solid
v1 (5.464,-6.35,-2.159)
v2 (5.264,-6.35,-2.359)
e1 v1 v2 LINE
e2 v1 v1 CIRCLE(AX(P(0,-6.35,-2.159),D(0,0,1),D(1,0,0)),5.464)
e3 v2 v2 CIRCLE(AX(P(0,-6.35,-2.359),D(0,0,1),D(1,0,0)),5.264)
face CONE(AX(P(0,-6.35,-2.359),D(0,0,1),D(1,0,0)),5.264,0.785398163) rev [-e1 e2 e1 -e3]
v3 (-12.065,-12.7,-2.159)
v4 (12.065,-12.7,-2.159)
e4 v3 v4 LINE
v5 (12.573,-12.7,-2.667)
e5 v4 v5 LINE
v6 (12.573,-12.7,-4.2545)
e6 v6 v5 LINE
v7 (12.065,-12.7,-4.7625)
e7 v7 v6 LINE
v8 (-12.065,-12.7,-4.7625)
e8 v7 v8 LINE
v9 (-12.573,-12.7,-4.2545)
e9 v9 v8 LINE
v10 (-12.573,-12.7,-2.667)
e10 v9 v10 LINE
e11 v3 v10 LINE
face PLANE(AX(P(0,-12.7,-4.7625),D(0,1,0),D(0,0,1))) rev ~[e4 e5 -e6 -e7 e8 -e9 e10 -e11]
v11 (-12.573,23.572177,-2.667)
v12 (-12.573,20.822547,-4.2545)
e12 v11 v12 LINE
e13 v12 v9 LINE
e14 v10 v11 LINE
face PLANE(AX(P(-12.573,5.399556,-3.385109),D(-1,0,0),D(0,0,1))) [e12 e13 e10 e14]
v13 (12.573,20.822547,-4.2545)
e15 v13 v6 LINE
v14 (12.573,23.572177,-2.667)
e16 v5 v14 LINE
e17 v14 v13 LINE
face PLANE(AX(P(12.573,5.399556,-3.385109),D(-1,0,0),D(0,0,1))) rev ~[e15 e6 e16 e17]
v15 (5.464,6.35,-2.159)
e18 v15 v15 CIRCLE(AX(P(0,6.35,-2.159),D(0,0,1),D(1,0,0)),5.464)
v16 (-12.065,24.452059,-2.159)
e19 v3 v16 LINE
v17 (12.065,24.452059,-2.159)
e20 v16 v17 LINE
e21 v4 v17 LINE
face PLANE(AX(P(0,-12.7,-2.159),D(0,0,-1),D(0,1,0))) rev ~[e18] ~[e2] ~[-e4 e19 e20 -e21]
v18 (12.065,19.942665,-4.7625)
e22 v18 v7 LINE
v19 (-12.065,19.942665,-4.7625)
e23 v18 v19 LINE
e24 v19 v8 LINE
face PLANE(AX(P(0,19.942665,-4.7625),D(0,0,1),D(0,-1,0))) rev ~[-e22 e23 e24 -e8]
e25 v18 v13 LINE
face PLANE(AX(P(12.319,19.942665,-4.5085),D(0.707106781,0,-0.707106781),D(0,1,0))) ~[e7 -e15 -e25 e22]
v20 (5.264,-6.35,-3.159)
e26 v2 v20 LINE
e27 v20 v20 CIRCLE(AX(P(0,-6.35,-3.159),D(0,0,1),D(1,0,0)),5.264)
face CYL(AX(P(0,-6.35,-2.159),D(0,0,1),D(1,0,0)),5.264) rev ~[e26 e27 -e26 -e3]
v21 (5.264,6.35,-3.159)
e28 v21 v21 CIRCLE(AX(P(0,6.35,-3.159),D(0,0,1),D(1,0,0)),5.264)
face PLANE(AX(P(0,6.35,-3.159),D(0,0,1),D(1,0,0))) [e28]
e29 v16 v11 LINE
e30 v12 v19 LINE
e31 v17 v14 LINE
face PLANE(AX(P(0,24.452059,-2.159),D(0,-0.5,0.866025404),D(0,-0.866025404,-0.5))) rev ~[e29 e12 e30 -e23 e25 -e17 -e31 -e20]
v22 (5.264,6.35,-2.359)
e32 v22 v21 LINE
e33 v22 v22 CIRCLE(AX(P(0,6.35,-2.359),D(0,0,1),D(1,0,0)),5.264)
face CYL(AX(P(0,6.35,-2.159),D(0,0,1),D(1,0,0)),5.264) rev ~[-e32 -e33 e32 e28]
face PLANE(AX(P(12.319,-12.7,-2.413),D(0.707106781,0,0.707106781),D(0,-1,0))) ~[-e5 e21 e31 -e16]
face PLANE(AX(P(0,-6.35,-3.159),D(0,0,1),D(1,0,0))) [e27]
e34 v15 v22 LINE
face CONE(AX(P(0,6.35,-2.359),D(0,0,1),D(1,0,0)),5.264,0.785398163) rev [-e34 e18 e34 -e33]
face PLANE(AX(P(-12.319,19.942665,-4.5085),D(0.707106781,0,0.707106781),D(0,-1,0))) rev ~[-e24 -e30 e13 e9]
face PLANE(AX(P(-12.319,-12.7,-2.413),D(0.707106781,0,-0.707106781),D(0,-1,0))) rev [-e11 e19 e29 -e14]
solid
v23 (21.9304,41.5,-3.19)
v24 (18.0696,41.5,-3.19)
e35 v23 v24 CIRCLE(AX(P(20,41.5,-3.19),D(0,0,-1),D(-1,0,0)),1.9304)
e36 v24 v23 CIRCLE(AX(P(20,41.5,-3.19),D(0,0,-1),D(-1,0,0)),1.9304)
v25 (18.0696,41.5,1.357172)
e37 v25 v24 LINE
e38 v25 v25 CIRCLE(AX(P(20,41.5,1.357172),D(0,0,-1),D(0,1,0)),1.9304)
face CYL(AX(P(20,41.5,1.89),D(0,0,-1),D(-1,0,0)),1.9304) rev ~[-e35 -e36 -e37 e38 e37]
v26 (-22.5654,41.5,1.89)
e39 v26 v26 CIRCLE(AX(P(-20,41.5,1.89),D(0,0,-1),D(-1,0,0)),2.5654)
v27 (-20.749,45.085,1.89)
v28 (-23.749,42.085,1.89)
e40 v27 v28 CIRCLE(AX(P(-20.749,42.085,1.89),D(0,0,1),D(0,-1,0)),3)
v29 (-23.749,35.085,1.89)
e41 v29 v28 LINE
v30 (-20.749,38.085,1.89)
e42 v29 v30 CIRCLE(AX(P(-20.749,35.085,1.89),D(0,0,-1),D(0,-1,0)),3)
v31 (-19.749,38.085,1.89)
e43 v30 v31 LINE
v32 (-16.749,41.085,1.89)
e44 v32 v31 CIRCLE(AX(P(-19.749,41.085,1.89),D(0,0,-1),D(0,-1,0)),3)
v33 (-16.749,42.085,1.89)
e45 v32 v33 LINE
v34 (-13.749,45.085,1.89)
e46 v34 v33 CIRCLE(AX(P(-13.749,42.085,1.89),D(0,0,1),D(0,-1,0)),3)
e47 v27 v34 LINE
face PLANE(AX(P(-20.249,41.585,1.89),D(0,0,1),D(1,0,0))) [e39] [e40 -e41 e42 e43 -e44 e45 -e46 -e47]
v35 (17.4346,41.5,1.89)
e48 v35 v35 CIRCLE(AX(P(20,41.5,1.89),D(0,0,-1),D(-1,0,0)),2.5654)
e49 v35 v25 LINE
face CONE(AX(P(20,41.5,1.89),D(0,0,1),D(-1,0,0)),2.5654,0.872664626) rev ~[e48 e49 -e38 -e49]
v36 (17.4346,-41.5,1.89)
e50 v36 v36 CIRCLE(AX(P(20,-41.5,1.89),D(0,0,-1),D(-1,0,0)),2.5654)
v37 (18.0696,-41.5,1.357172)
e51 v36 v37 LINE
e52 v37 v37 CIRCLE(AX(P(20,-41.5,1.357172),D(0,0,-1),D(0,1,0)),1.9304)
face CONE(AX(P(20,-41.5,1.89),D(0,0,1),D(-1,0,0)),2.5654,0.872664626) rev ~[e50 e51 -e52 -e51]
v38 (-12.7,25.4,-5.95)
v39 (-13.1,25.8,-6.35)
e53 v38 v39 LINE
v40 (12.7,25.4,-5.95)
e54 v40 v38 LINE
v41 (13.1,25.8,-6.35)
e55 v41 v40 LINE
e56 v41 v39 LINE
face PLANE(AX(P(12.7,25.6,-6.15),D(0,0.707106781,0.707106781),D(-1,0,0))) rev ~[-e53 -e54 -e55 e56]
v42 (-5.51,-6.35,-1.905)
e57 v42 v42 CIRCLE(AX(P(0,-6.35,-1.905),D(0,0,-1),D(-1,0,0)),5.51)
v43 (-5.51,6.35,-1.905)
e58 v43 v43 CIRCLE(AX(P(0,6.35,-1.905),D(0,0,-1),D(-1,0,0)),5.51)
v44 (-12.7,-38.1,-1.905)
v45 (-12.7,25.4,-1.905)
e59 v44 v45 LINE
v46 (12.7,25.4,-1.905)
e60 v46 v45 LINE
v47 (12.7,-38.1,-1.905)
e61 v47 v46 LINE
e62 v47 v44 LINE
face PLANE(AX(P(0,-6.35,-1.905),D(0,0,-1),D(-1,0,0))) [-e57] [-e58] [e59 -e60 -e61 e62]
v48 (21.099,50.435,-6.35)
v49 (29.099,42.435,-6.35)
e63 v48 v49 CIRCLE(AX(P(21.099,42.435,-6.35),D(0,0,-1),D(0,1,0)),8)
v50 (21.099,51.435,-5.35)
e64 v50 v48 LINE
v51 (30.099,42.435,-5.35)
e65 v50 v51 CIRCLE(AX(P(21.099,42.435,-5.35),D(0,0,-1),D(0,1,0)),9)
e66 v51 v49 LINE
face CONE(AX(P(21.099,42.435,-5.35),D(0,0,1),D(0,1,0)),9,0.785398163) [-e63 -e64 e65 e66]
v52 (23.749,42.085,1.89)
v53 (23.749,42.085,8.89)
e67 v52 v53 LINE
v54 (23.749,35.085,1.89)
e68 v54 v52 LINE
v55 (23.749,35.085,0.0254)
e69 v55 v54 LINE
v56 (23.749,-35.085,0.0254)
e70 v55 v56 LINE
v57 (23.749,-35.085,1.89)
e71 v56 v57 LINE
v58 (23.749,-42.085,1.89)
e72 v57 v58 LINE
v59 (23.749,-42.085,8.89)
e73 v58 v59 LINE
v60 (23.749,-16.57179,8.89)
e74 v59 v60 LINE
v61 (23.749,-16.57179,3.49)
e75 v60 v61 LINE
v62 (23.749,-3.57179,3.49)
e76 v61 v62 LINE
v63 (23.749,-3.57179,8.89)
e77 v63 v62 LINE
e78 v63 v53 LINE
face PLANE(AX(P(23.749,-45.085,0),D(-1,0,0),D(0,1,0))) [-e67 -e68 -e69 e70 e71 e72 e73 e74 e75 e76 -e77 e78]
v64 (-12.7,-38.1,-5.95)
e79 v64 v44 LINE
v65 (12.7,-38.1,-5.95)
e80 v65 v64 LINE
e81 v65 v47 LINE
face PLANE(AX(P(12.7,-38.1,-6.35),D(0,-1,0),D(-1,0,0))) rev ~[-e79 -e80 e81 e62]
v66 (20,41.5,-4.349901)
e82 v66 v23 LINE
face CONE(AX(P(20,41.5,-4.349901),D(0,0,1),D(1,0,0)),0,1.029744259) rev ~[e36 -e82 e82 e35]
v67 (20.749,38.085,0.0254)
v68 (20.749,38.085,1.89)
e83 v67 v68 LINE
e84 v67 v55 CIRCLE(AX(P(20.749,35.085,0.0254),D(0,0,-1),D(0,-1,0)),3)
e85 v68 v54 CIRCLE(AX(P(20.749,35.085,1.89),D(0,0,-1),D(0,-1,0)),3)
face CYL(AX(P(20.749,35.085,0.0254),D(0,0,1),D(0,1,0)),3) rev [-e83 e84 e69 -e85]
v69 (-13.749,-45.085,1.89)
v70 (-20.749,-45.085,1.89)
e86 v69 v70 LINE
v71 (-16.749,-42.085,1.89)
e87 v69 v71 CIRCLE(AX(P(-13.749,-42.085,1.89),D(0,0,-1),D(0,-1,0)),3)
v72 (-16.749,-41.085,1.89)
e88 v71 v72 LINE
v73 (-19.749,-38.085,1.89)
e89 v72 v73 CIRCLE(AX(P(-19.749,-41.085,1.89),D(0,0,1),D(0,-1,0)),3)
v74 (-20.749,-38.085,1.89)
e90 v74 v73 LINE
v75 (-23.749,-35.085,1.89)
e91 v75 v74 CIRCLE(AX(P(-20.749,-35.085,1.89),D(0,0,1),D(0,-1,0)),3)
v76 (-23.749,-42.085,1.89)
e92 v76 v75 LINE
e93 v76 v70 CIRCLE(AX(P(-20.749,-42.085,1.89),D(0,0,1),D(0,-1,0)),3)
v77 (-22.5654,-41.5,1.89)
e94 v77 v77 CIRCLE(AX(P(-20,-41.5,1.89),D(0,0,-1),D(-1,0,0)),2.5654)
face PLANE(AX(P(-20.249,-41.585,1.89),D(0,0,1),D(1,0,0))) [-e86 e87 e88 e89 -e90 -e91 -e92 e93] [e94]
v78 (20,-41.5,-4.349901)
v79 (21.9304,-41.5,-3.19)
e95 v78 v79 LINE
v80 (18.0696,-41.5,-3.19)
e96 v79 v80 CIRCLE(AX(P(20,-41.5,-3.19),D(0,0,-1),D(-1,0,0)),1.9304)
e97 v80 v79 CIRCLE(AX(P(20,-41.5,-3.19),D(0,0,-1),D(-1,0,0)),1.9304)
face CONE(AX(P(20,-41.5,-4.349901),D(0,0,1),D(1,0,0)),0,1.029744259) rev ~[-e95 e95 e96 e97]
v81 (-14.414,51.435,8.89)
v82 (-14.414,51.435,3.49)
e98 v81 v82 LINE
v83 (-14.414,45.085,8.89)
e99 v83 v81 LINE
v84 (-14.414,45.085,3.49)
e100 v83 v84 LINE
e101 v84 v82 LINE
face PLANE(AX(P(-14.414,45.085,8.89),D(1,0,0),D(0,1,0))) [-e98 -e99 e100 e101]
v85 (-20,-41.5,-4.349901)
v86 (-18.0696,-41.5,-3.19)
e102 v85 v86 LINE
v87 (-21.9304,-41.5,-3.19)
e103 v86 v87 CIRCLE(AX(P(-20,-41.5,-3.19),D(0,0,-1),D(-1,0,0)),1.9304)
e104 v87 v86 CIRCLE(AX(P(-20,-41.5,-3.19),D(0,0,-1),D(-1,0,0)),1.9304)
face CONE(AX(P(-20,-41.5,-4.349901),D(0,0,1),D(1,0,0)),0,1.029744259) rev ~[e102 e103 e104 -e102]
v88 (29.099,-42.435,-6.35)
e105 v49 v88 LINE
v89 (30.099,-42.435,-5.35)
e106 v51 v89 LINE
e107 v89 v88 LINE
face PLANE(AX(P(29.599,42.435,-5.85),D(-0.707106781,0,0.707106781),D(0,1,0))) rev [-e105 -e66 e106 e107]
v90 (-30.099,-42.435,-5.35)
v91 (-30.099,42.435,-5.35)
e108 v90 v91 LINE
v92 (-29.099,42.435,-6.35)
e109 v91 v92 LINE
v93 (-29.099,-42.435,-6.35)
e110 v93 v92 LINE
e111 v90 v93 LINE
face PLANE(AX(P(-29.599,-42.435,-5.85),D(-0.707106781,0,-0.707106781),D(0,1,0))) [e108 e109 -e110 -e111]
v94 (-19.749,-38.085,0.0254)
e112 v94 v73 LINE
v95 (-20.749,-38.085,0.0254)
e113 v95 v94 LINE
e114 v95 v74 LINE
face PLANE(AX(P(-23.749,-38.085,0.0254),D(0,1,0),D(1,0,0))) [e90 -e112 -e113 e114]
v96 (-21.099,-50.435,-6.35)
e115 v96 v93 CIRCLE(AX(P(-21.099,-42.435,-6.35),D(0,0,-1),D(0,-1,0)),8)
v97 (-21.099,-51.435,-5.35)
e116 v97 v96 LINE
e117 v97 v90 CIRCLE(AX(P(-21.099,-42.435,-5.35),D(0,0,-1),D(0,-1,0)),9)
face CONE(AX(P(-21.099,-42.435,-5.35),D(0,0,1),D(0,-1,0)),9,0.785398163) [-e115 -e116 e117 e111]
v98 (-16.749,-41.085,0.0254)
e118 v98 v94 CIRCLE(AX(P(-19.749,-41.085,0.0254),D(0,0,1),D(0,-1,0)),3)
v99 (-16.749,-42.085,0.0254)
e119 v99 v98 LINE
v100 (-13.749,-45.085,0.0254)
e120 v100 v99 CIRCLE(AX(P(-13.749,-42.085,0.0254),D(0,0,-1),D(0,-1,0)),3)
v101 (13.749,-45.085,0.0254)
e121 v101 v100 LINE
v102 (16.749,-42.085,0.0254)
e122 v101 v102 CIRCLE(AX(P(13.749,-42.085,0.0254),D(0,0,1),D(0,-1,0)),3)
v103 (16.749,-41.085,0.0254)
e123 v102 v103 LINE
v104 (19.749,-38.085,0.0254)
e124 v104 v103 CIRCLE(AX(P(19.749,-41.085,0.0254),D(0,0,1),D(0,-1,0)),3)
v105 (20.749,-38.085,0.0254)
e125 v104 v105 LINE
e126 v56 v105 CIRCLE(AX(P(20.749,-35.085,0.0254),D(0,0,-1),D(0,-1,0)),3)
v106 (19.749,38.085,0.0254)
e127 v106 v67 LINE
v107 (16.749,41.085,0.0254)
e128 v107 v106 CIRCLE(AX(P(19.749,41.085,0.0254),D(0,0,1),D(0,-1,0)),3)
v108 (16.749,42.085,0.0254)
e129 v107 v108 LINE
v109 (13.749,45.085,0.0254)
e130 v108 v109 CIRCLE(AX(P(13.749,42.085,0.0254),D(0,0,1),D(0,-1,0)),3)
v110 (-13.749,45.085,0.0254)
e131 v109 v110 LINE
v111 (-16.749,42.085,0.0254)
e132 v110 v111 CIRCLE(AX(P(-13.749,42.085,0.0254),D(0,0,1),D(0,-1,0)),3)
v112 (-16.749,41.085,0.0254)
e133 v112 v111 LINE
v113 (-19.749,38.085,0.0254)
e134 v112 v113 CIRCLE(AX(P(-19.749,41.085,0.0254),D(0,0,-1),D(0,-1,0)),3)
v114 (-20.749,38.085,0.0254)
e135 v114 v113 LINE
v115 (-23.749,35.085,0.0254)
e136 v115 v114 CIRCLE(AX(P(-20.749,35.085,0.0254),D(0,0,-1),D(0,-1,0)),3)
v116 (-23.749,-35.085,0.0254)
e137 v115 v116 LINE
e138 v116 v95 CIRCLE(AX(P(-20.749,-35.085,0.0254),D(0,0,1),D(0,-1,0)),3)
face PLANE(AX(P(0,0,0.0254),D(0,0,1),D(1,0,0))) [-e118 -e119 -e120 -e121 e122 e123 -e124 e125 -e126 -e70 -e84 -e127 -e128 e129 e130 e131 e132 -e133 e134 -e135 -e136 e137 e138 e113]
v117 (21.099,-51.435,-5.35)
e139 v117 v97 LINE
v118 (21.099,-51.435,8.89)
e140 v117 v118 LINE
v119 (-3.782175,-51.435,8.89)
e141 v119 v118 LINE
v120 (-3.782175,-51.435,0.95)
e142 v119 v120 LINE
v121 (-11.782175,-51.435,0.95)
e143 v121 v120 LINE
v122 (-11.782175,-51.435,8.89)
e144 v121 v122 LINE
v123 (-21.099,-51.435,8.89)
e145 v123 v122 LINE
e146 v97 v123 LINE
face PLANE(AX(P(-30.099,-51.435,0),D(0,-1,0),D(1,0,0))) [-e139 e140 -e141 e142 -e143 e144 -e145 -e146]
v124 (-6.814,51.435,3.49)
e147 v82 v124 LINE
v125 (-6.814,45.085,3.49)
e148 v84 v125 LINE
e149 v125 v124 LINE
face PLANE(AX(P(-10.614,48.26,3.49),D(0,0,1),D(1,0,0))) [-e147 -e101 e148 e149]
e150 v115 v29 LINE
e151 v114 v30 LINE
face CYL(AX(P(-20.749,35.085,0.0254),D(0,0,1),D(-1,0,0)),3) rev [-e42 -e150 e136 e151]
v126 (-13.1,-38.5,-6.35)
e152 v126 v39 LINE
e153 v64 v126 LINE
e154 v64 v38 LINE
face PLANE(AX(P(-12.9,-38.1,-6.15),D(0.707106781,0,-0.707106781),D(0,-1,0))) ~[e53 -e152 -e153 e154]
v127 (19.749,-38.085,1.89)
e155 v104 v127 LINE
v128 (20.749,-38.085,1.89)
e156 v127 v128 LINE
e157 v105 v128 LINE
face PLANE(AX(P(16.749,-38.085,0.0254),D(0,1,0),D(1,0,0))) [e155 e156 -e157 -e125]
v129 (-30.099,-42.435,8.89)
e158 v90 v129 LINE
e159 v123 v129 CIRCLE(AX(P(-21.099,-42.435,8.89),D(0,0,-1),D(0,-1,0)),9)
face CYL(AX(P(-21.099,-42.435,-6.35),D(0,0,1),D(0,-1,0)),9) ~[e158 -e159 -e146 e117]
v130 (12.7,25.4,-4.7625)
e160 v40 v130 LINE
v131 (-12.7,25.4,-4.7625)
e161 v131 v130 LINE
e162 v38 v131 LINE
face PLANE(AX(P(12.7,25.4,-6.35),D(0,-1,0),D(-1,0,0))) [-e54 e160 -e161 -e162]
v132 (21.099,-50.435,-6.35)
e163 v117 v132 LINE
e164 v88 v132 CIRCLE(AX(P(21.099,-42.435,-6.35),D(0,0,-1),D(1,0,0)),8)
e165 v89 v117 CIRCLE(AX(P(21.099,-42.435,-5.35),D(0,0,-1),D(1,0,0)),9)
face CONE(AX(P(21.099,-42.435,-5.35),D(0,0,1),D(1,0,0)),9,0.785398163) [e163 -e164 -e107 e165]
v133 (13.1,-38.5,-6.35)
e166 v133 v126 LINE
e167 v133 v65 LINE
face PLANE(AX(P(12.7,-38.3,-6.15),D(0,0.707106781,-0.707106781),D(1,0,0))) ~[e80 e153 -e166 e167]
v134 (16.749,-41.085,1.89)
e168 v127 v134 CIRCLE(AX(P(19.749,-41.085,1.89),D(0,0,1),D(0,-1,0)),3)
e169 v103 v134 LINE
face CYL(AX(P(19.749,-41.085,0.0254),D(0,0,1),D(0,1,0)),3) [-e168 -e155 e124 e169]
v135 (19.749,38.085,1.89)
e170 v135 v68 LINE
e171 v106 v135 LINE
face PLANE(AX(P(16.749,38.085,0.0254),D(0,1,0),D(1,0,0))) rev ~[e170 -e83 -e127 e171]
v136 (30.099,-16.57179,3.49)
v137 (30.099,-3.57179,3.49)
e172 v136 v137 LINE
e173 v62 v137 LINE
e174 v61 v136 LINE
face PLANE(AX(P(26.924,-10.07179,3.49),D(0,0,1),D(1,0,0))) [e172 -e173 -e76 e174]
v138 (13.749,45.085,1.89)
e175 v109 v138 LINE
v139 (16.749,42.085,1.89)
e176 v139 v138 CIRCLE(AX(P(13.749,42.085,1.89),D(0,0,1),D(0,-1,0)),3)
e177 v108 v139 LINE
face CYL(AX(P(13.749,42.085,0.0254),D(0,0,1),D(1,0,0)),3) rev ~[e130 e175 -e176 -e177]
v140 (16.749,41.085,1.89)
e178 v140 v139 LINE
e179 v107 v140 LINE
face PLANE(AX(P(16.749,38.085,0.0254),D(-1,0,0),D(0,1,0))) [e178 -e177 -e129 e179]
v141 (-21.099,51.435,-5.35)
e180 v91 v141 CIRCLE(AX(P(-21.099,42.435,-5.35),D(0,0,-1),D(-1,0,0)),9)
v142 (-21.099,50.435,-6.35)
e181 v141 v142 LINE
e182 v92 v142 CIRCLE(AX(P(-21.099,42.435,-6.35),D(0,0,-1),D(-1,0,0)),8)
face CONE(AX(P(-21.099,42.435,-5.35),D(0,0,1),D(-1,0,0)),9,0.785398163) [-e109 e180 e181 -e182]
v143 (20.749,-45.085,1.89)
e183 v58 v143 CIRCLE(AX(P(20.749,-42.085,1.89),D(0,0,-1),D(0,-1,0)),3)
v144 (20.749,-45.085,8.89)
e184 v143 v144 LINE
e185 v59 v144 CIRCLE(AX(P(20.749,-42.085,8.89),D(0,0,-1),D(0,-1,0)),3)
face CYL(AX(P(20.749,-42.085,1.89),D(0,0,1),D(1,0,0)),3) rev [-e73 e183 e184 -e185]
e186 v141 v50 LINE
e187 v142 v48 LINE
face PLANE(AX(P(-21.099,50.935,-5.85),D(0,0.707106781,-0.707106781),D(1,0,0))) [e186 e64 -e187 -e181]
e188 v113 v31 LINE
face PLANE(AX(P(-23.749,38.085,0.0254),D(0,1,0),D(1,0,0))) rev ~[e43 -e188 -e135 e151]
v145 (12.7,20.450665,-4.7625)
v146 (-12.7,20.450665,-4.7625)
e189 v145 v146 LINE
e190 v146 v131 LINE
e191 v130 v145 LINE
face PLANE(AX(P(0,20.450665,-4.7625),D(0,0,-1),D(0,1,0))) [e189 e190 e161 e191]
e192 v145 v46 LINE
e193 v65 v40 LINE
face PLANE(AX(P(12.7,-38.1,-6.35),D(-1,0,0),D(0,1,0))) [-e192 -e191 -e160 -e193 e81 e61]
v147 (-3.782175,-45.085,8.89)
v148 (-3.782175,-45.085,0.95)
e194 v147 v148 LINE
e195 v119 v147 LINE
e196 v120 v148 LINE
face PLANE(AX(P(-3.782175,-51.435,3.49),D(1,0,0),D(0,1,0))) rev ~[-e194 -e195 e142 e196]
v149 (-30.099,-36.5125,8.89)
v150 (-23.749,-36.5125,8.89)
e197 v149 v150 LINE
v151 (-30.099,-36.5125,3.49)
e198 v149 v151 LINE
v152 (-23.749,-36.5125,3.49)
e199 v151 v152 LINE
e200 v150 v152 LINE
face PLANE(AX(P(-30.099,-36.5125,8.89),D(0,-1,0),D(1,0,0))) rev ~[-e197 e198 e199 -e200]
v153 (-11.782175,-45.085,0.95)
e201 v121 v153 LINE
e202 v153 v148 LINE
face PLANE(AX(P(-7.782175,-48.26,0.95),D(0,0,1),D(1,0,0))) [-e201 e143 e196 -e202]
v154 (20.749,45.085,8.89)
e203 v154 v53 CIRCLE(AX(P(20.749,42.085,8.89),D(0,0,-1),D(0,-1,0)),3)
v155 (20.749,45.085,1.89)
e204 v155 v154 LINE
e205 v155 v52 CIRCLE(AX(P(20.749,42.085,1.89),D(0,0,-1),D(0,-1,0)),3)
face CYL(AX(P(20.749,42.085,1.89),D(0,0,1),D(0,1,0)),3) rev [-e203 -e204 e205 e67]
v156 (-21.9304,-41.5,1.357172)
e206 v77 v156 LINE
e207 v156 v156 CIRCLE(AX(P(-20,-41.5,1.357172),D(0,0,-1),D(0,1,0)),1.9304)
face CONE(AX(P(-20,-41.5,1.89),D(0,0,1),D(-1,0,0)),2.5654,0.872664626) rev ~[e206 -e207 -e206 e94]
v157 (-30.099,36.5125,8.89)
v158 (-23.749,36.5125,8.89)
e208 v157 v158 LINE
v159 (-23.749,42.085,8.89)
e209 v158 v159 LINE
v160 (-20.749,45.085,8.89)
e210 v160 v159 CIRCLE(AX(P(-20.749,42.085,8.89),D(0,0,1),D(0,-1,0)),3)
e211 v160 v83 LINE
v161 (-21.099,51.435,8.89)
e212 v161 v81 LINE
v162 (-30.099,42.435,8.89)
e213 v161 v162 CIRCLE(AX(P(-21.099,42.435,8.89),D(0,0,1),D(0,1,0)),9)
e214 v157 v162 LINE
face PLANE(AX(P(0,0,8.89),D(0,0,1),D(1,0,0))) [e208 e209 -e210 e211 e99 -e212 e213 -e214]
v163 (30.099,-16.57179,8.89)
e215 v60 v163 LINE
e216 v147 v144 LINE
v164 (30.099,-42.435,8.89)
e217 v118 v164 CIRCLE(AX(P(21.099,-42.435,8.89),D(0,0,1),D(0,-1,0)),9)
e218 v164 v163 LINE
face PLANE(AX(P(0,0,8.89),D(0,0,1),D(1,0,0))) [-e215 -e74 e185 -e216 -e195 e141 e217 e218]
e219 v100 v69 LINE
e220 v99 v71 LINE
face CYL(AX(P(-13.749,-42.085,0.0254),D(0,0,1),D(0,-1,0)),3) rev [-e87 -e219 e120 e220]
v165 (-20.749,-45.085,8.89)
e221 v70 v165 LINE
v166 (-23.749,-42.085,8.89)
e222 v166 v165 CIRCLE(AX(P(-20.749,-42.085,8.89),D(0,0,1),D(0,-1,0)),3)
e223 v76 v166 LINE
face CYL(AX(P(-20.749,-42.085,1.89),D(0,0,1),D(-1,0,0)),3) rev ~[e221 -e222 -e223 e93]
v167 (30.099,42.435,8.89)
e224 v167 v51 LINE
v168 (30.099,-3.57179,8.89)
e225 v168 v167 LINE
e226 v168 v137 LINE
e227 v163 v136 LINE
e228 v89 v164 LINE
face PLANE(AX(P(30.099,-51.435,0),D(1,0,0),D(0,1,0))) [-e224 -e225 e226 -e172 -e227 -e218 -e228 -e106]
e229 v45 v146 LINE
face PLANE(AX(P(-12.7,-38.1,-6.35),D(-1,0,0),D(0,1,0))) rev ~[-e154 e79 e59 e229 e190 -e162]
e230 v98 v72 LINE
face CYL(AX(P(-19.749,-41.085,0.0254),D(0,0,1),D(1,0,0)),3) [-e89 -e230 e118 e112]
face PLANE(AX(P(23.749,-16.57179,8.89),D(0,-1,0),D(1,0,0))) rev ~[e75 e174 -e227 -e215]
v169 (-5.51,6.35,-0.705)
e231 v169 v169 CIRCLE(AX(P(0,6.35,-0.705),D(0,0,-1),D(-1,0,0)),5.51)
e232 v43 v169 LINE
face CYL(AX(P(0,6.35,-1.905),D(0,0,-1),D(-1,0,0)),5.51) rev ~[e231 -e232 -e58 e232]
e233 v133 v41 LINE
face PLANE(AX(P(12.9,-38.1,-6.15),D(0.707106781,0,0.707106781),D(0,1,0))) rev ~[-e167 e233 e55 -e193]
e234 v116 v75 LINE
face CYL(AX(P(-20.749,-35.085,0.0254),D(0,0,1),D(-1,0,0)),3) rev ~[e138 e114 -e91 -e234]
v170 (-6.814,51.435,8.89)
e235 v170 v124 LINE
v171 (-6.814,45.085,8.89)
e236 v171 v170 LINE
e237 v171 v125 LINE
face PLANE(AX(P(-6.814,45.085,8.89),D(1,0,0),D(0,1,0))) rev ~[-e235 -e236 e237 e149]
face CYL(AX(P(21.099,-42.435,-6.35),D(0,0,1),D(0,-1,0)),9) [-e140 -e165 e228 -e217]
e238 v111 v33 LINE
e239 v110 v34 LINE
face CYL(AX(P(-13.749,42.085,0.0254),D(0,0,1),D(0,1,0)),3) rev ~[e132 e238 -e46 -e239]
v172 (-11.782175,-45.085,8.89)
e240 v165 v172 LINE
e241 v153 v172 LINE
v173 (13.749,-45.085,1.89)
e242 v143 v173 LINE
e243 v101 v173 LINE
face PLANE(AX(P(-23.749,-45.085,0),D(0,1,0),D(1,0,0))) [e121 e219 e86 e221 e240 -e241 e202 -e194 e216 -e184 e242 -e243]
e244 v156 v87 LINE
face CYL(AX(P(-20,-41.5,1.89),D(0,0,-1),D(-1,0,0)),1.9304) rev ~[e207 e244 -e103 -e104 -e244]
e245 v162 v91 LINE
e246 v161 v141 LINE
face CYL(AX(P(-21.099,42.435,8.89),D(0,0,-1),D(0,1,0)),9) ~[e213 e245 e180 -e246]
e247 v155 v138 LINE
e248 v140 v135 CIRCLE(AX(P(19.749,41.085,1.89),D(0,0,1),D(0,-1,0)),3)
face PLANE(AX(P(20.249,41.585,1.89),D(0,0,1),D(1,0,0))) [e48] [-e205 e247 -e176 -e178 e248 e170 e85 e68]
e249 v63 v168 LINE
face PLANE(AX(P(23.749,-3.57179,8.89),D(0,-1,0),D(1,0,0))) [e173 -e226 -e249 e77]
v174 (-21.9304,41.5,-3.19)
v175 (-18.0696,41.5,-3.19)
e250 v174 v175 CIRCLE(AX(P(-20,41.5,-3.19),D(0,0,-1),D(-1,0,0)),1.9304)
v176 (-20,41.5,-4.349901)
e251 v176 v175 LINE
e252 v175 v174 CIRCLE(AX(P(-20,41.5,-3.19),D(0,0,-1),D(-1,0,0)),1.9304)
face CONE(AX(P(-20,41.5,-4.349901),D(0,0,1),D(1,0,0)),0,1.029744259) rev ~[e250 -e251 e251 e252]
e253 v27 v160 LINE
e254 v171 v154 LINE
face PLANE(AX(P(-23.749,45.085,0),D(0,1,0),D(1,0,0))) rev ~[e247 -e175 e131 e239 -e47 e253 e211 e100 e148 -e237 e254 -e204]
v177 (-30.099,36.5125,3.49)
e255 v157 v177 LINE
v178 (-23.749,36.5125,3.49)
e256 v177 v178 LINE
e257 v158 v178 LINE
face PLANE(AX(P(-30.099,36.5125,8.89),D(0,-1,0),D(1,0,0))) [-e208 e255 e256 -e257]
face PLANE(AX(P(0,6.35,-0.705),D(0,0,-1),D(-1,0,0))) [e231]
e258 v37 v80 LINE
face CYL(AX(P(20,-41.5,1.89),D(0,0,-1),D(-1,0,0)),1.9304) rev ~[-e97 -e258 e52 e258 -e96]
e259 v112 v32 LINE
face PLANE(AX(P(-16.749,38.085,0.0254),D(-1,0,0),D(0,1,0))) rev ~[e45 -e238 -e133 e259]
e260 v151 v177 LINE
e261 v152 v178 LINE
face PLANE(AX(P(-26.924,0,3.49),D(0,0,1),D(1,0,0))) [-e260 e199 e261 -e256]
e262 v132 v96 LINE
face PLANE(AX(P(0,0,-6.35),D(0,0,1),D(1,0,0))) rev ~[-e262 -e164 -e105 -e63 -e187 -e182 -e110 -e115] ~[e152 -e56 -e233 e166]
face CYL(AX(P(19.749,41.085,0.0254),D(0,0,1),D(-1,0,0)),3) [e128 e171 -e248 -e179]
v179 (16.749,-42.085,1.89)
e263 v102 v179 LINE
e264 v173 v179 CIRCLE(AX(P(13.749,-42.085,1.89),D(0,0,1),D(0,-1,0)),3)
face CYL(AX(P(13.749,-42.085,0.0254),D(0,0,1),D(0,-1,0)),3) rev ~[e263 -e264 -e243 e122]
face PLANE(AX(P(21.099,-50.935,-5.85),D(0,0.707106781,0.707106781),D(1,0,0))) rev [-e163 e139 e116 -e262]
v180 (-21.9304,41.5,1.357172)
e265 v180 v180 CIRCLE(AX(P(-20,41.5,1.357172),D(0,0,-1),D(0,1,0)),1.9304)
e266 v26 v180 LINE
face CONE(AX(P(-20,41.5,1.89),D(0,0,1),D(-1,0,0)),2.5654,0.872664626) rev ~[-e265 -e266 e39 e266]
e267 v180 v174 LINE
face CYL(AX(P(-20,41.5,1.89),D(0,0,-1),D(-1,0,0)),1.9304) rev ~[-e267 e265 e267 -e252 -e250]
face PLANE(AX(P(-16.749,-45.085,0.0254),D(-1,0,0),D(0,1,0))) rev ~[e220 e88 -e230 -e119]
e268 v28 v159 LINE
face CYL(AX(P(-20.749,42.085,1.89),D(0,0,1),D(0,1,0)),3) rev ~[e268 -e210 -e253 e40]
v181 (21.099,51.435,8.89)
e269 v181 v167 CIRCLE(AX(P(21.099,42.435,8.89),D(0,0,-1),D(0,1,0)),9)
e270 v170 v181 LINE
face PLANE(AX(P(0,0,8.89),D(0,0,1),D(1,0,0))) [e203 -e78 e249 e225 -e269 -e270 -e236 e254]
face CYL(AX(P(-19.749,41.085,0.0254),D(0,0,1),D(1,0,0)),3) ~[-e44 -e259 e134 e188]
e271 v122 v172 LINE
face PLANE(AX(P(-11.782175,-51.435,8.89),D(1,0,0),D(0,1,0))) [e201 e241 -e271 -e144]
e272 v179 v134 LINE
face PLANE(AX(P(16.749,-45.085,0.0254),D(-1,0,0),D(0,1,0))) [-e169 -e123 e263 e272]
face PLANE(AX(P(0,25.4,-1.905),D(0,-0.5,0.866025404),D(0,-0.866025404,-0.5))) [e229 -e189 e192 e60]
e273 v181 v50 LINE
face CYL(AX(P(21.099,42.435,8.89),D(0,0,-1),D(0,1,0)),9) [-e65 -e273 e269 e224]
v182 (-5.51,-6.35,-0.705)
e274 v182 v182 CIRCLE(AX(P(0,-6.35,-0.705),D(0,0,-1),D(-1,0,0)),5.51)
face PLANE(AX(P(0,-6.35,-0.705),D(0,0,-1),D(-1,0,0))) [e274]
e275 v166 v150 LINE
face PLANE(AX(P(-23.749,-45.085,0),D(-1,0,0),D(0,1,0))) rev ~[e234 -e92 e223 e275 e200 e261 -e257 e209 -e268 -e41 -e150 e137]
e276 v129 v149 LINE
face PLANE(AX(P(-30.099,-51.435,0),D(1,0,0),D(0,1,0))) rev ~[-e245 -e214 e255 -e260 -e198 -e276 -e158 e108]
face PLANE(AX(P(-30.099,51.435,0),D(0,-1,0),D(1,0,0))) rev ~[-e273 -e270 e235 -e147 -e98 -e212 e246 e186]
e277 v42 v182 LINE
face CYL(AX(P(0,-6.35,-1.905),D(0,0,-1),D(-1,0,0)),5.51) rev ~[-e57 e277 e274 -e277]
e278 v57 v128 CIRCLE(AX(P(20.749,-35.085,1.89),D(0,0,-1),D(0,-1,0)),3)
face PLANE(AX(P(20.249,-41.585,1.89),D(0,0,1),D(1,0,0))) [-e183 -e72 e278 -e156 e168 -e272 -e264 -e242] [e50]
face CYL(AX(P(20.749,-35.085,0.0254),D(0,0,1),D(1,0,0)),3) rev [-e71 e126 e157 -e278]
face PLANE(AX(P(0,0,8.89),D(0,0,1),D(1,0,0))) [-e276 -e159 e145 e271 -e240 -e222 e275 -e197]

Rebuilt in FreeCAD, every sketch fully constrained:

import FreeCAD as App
import Part
import Sketcher
Q = App.Units.Quantity


def edges_at(feature, points):
    """Names of the edges that pass closest to the given points."""
    edges = feature.Shape.Edges
    near = lambda p: min(range(len(edges)), key=lambda i: edges[i].distToShape(Part.Vertex(*p))[0])
    return sorted({f"Edge{near(p) + 1}" for p in points})

doc = App.newDocument("Part")
body = doc.addObject("PartDesign::Body", "Body")

# Sketch on XY plane
sketch1 = body.newObject("Sketcher::SketchObject", "Sketch")
sketch1.AttachmentSupport = (doc.getObject("XY_Plane"), [""])
sketch1.MapMode = "FlatFace"
sketch1.addGeometry([
    Part.LineSegment(App.Vector(-30, 51, 0), App.Vector(-30, -51, 0)),
    Part.LineSegment(App.Vector(-30, -51, 0), App.Vector(30, -51, 0)),
    Part.LineSegment(App.Vector(30, -51, 0), App.Vector(30, 51, 0)),
    Part.LineSegment(App.Vector(30, 51, 0), App.Vector(-30, 51, 0)),
], False)
sketch1.addConstraint([
    Sketcher.Constraint("Coincident", 0, 2, 1, 1),
    Sketcher.Constraint("Coincident", 1, 2, 2, 1),
    Sketcher.Constraint("Coincident", 2, 2, 3, 1),
    Sketcher.Constraint("Coincident", 3, 2, 0, 1),
    Sketcher.Constraint("Vertical", 0),
    Sketcher.Constraint("Horizontal", 1),
    Sketcher.Constraint("Vertical", 2),
    Sketcher.Constraint("Horizontal", 3),
    Sketcher.Constraint("Symmetric", 0, 2, 2, 2, -1, 1),
    Sketcher.Constraint("DistanceX", 1, 1, 1, 2, Q("2.37 in")),
    Sketcher.Constraint("DistanceY", 0, 2, 0, 1, Q("4.05 in")),
])
pad1 = body.newObject("PartDesign::Pad", "Pad")
pad1.Profile = sketch1
pad1.Type = "TwoLengths"
pad1.Length = Q("0.001 in")
pad1.Length2 = Q("0.25 in")

# Sketch on XY plane
sketch2 = body.newObject("Sketcher::SketchObject", "Sketch001")
sketch2.AttachmentSupport = (doc.getObject("XY_Plane"), [""])
sketch2.MapMode = "FlatFace"
sketch2.addGeometry([
    Part.LineSegment(App.Vector(-30, 51, 0), App.Vector(-30, -51, 0)),  # 0
    Part.LineSegment(App.Vector(-30, -51, 0), App.Vector(30, -51, 0)),  # 1
    Part.LineSegment(App.Vector(30, -51, 0), App.Vector(30, 51, 0)),  # 2
    Part.LineSegment(App.Vector(30, 51, 0), App.Vector(-30, 51, 0)),  # 3
    Part.LineSegment(App.Vector(24, -45, 0), App.Vector(-24, -45, 0)),  # 4
    Part.LineSegment(App.Vector(-24, -45, 0), App.Vector(-24, 45, 0)),  # 5
    Part.LineSegment(App.Vector(-24, 45, 0), App.Vector(24, 45, 0)),  # 6
    Part.LineSegment(App.Vector(24, 45, 0), App.Vector(24, -45, 0)),  # 7
], False)
sketch2.addConstraint([
    Sketcher.Constraint("Coincident", 0, 2, 1, 1),
    Sketcher.Constraint("Coincident", 1, 2, 2, 1),
    Sketcher.Constraint("Coincident", 2, 2, 3, 1),
    Sketcher.Constraint("Coincident", 3, 2, 0, 1),
    Sketcher.Constraint("Coincident", 4, 2, 5, 1),
    Sketcher.Constraint("Coincident", 5, 2, 6, 1),
    Sketcher.Constraint("Coincident", 6, 2, 7, 1),
    Sketcher.Constraint("Coincident", 7, 2, 4, 1),
    Sketcher.Constraint("Vertical", 0),
    Sketcher.Constraint("Horizontal", 1),
    Sketcher.Constraint("Vertical", 2),
    Sketcher.Constraint("Horizontal", 3),
    Sketcher.Constraint("Horizontal", 4),
    Sketcher.Constraint("Vertical", 5),
    Sketcher.Constraint("Horizontal", 6),
    Sketcher.Constraint("Vertical", 7),
    Sketcher.Constraint("Symmetric", 0, 2, 2, 2, -1, 1),
    Sketcher.Constraint("Symmetric", 4, 2, 6, 2, -1, 1),
    Sketcher.Constraint("DistanceX", 1, 1, 1, 2, Q("2.37 in")),
    Sketcher.Constraint("DistanceX", 4, 2, 4, 1, Q("1.87 in")),
    Sketcher.Constraint("DistanceY", 0, 2, 0, 1, Q("4.05 in")),
    Sketcher.Constraint("DistanceY", 5, 1, 5, 2, Q("3.55 in")),
])
pad2 = body.newObject("PartDesign::Pad", "Pad001")
pad2.Profile = sketch2
pad2.Length = Q("0.35 in")

# Sketch on XY plane
sketch3 = body.newObject("Sketcher::SketchObject", "Sketch002")
sketch3.AttachmentSupport = (doc.getObject("XY_Plane"), [""])
sketch3.MapMode = "FlatFace"
sketch3.AttachmentOffset = App.Placement(App.Vector(0, 0, 0.001 * 25.4), App.Rotation())
sketch3.addGeometry([
    Part.LineSegment(App.Vector(17, 45, 0), App.Vector(17, 38, 0)),  # 0
    Part.LineSegment(App.Vector(17, 38, 0), App.Vector(24, 38, 0)),  # 1
    Part.LineSegment(App.Vector(24, 38, 0), App.Vector(24, 45, 0)),  # 2
    Part.LineSegment(App.Vector(24, 45, 0), App.Vector(17, 45, 0)),  # 3
    Part.LineSegment(App.Vector(17, -38, 0), App.Vector(17, -45, 0)),  # 4
    Part.LineSegment(App.Vector(17, -45, 0), App.Vector(24, -45, 0)),  # 5
    Part.LineSegment(App.Vector(24, -45, 0), App.Vector(24, -38, 0)),  # 6
    Part.LineSegment(App.Vector(24, -38, 0), App.Vector(17, -38, 0)),  # 7
    Part.LineSegment(App.Vector(-24, -38, 0), App.Vector(-24, -45, 0)),  # 8
    Part.LineSegment(App.Vector(-24, -45, 0), App.Vector(-17, -45, 0)),  # 9
    Part.LineSegment(App.Vector(-17, -45, 0), App.Vector(-17, -38, 0)),  # 10
    Part.LineSegment(App.Vector(-17, -38, 0), App.Vector(-24, -38, 0)),  # 11
    Part.LineSegment(App.Vector(-24, 45, 0), App.Vector(-24, 38, 0)),  # 12
    Part.LineSegment(App.Vector(-24, 38, 0), App.Vector(-17, 38, 0)),  # 13
    Part.LineSegment(App.Vector(-17, 38, 0), App.Vector(-17, 45, 0)),  # 14
    Part.LineSegment(App.Vector(-17, 45, 0), App.Vector(-24, 45, 0)),  # 15
], False)
sketch3.addConstraint([
    Sketcher.Constraint("Coincident", 0, 2, 1, 1),
    Sketcher.Constraint("Coincident", 1, 2, 2, 1),
    Sketcher.Constraint("Coincident", 2, 2, 3, 1),
    Sketcher.Constraint("Coincident", 3, 2, 0, 1),
    Sketcher.Constraint("Coincident", 4, 2, 5, 1),
    Sketcher.Constraint("Coincident", 5, 2, 6, 1),
    Sketcher.Constraint("Coincident", 6, 2, 7, 1),
    Sketcher.Constraint("Coincident", 7, 2, 4, 1),
    Sketcher.Constraint("Coincident", 8, 2, 9, 1),
    Sketcher.Constraint("Coincident", 9, 2, 10, 1),
    Sketcher.Constraint("Coincident", 10, 2, 11, 1),
    Sketcher.Constraint("Coincident", 11, 2, 8, 1),
    Sketcher.Constraint("Coincident", 12, 2, 13, 1),
    Sketcher.Constraint("Coincident", 13, 2, 14, 1),
    Sketcher.Constraint("Coincident", 14, 2, 15, 1),
    Sketcher.Constraint("Coincident", 15, 2, 12, 1),
    Sketcher.Constraint("Vertical", 0),
    Sketcher.Constraint("Horizontal", 1),
    Sketcher.Constraint("Vertical", 2),
    Sketcher.Constraint("Horizontal", 3),
    Sketcher.Constraint("Vertical", 4),
    Sketcher.Constraint("Horizontal", 5),
    Sketcher.Constraint("Vertical", 6),
    Sketcher.Constraint("Horizontal", 7),
    Sketcher.Constraint("Vertical", 8),
    Sketcher.Constraint("Horizontal", 9),
    Sketcher.Constraint("Vertical", 10),
    Sketcher.Constraint("Horizontal", 11),
    Sketcher.Constraint("Vertical", 12),
    Sketcher.Constraint("Horizontal", 13),
    Sketcher.Constraint("Vertical", 14),
    Sketcher.Constraint("Horizontal", 15),
    Sketcher.Constraint("Symmetric", 2, 2, 8, 2, -1, 1),
    Sketcher.Constraint("Symmetric", 0, 2, 10, 2, -1, 1),
    Sketcher.Constraint("Symmetric", 6, 2, 12, 2, -1, 1),
    Sketcher.Constraint("Symmetric", 4, 2, 14, 2, -1, 1),
    Sketcher.Constraint("Symmetric", 5, 2, 8, 2, -2),
    Sketcher.Constraint("Symmetric", 7, 2, 10, 2, -2),
    Sketcher.Constraint("Equal", 15, 0),
    Sketcher.Constraint("DistanceY", 4, 2, 3, 2, Q("3.55 in")),
    Sketcher.Constraint("DistanceX", 8, 2, 5, 2, Q("1.87 in")),
    Sketcher.Constraint("DistanceX", 1, 1, 1, 2, Q("7 mm")),
])
pad3 = body.newObject("PartDesign::Pad", "Pad002")
pad3.Profile = sketch3
pad3.Length = 1.8646

# Sketch on XY plane
sketch4 = body.newObject("Sketcher::SketchObject", "Sketch003")
sketch4.AttachmentSupport = (doc.getObject("XY_Plane"), [""])
sketch4.MapMode = "FlatFace"
sketch4.AttachmentOffset = App.Placement(App.Vector(0, 0, 1.89), App.Rotation())
sketch4.addGeometry([
    Part.Circle(App.Vector(-20, 41.5, 0), App.Vector(0, 0, 1), 1.9),
    Part.Circle(App.Vector(20, 41.5, 0), App.Vector(0, 0, 1), 1.9),
    Part.Circle(App.Vector(20, -41.5, 0), App.Vector(0, 0, 1), 1.9),
    Part.Circle(App.Vector(-20, -41.5, 0), App.Vector(0, 0, 1), 1.9),
], False)
sketch4.addConstraint([
    Sketcher.Constraint("Equal", 0, 1),
    Sketcher.Constraint("Equal", 1, 2),
    Sketcher.Constraint("Equal", 2, 3),
    Sketcher.Constraint("Symmetric", 0, 3, 2, 3, -1, 1),
    Sketcher.Constraint("Symmetric", 1, 3, 3, 3, -1, 1),
    Sketcher.Constraint("Symmetric", 0, 3, 1, 3, -2),
    Sketcher.Constraint("Diameter", 0, Q("0.152 in")),
    Sketcher.Constraint("DistanceX", 0, 3, -1, 1, Q("20 mm")),
    Sketcher.Constraint("DistanceY", -1, 1, 0, 3, Q("41.5 mm")),
])
doc.recompute()
hole = body.newObject("PartDesign::Hole", "Hole")
hole.Profile = sketch4
hole.ThreadType = "None"
hole.Diameter = Q("0.152 in")
hole.DepthType = "Dimension"
hole.Depth = Q("0.2 in")
hole.DrillPoint = "Angled"
hole.DrillPointAngle = 118
hole.HoleCutType = "Countersink"
hole.HoleCutDiameter = Q("0.202 in")
hole.HoleCutCountersinkAngle = 100

# Sketch on XY plane
sketch5 = body.newObject("Sketcher::SketchObject", "Sketch004")
sketch5.AttachmentSupport = (doc.getObject("XY_Plane"), [""])
sketch5.MapMode = "FlatFace"
sketch5.AttachmentOffset = App.Placement(App.Vector(0, 0, 0.35 * 25.4), App.Rotation())
sketch5.addGeometry([
    Part.LineSegment(App.Vector(-30, 37, 0), App.Vector(-30, -37, 0)),  # 0
    Part.LineSegment(App.Vector(-30, -37, 0), App.Vector(-24, -37, 0)),  # 1
    Part.LineSegment(App.Vector(-24, -37, 0), App.Vector(-24, 37, 0)),  # 2
    Part.LineSegment(App.Vector(-24, 37, 0), App.Vector(-30, 37, 0)),  # 3
    Part.LineSegment(App.Vector(-12, -45, 0), App.Vector(-12, -51, 0)),  # 4
    Part.LineSegment(App.Vector(-12, -51, 0), App.Vector(-4, -51, 0)),  # 5
    Part.LineSegment(App.Vector(-4, -51, 0), App.Vector(-4, -45, 0)),  # 6
    Part.LineSegment(App.Vector(-4, -45, 0), App.Vector(-12, -45, 0)),  # 7
    Part.LineSegment(App.Vector(-14, 51, 0), App.Vector(-14, 45, 0)),  # 8
    Part.LineSegment(App.Vector(-14, 45, 0), App.Vector(-7, 45, 0)),  # 9
    Part.LineSegment(App.Vector(-7, 45, 0), App.Vector(-7, 51, 0)),  # 10
    Part.LineSegment(App.Vector(-7, 51, 0), App.Vector(-14, 51, 0)),  # 11
    Part.LineSegment(App.Vector(24, -4, 0), App.Vector(24, -17, 0)),  # 12
    Part.LineSegment(App.Vector(24, -17, 0), App.Vector(30, -17, 0)),  # 13
    Part.LineSegment(App.Vector(30, -17, 0), App.Vector(30, -4, 0)),  # 14
    Part.LineSegment(App.Vector(30, -4, 0), App.Vector(24, -4, 0)),  # 15
], False)
sketch5.addConstraint([
    Sketcher.Constraint("Coincident", 0, 2, 1, 1),
    Sketcher.Constraint("Coincident", 1, 2, 2, 1),
    Sketcher.Constraint("Coincident", 2, 2, 3, 1),
    Sketcher.Constraint("Coincident", 3, 2, 0, 1),
    Sketcher.Constraint("Coincident", 4, 2, 5, 1),
    Sketcher.Constraint("Coincident", 5, 2, 6, 1),
    Sketcher.Constraint("Coincident", 6, 2, 7, 1),
    Sketcher.Constraint("Coincident", 7, 2, 4, 1),
    Sketcher.Constraint("Coincident", 8, 2, 9, 1),
    Sketcher.Constraint("Coincident", 9, 2, 10, 1),
    Sketcher.Constraint("Coincident", 10, 2, 11, 1),
    Sketcher.Constraint("Coincident", 11, 2, 8, 1),
    Sketcher.Constraint("Coincident", 12, 2, 13, 1),
    Sketcher.Constraint("Coincident", 13, 2, 14, 1),
    Sketcher.Constraint("Coincident", 14, 2, 15, 1),
    Sketcher.Constraint("Coincident", 15, 2, 12, 1),
    Sketcher.Constraint("Vertical", 0),
    Sketcher.Constraint("Horizontal", 1),
    Sketcher.Constraint("Vertical", 2),
    Sketcher.Constraint("Horizontal", 3),
    Sketcher.Constraint("Vertical", 4),
    Sketcher.Constraint("Horizontal", 5),
    Sketcher.Constraint("Vertical", 6),
    Sketcher.Constraint("Horizontal", 7),
    Sketcher.Constraint("Vertical", 8),
    Sketcher.Constraint("Horizontal", 9),
    Sketcher.Constraint("Vertical", 10),
    Sketcher.Constraint("Horizontal", 11),
    Sketcher.Constraint("Vertical", 12),
    Sketcher.Constraint("Horizontal", 13),
    Sketcher.Constraint("Vertical", 14),
    Sketcher.Constraint("Horizontal", 15),
    Sketcher.Constraint("Equal", 3, 13),
    Sketcher.Constraint("Equal", 15, 4),
    Sketcher.Constraint("Equal", 6, 8),
    Sketcher.Constraint("DistanceX", 1, 1, 1, 2, Q("0.25 in")),
    Sketcher.Constraint("DistanceY", 0, 2, 0, 1, Q("2.875 in")),
    Sketcher.Constraint("DistanceY", 7, 2, 8, 2, Q("3.55 in")),
    Sketcher.Constraint("DistanceX", 1, 2, 12, 2, Q("1.87 in")),
    Sketcher.Constraint("DistanceX", 0, 2, -1, 1, Q("1.185 in")),
    Sketcher.Constraint("DistanceY", 0, 2, -1, 1, Q("1.4375 in")),
    Sketcher.Constraint("DistanceY", 4, 2, -1, 1, Q("2.025 in")),
    Sketcher.Constraint("DistanceX", 5, 1, 5, 2, Q("8 mm")),
    Sketcher.Constraint("DistanceX", 9, 1, 9, 2, Q("7.6 mm")),
    Sketcher.Constraint("DistanceY", 12, 2, 12, 1, Q("13 mm")),
    Sketcher.Constraint("DistanceX", 8, 2, -1, 1, Q("14.414 mm")),
    Sketcher.Constraint("DistanceY", 12, 2, -1, 1, Q("16.57179 mm")),
    Sketcher.Constraint("DistanceX", 4, 2, -1, 1, Q("11.782175 mm")),
])
pocket1 = body.newObject("PartDesign::Pocket", "Pocket")
pocket1.Profile = sketch5
pocket1.Length = 5.4
doc.recompute()

fillet = body.newObject("PartDesign::Fillet", "Fillet")
fillet.Base = (pocket1, edges_at(pocket1, [
    (-16.749, 45.085, 0.958),
    (-23.749, 38.085, 0.958),
    (-16.749, 38.085, 0.958),
    (-23.749, -45.085, 5.39),
    (23.749, -45.085, 5.39),
    (23.749, 45.085, 5.39),
    (-23.749, 45.085, 5.39),
    (23.749, 38.085, 0.958),
    (16.749, 38.085, 0.958),
    (16.749, 45.085, 0.958),
    (23.749, -38.085, 0.958),
    (16.749, -45.085, 0.958),
    (16.749, -38.085, 0.958),
    (-23.749, -38.085, 0.958),
    (-16.749, -38.085, 0.958),
    (-16.749, -45.085, 0.958),
]))
fillet.Radius = 3
doc.recompute()

fillet2 = body.newObject("PartDesign::Fillet", "Fillet001")
fillet2.Base = (fillet, edges_at(fillet, [
    (30.099, 51.435, 1.27),
    (-30.099, 51.435, 1.27),
    (-30.099, -51.435, 1.27),
    (30.099, -51.435, 1.27),
]))
fillet2.Radius = 9
doc.recompute()

chamfer = body.newObject("PartDesign::Chamfer", "Chamfer")
chamfer.Base = (fillet2, edges_at(fillet2, [
    (0, 51.435, -6.35),
    (30.099, 0, -6.35),
    (0, -51.435, -6.35),
    (-30.099, 0, -6.35),
    (-27.463, 48.799, -6.35),
    (-27.463, -48.799, -6.35),
    (27.463, -48.799, -6.35),
    (27.463, 48.799, -6.35),
]))
chamfer.Size = 1

# Sketch on XY plane
sketch6 = body.newObject("Sketcher::SketchObject", "Sketch005")
sketch6.AttachmentSupport = (doc.getObject("XY_Plane"), [""])
sketch6.MapMode = "FlatFace"
sketch6.AttachmentOffset = App.Placement(App.Vector(0, 0, -0.25 * 25.4), App.Rotation())
sketch6.addGeometry([
    Part.LineSegment(App.Vector(13, 25, 0), App.Vector(13, -38, 0)),
    Part.LineSegment(App.Vector(13, -38, 0), App.Vector(-13, -38, 0)),
    Part.LineSegment(App.Vector(-13, -38, 0), App.Vector(-13, 25, 0)),
    Part.LineSegment(App.Vector(-13, 25, 0), App.Vector(13, 25, 0)),
], False)
sketch6.addConstraint([
    Sketcher.Constraint("Coincident", 0, 2, 1, 1),
    Sketcher.Constraint("Coincident", 1, 2, 2, 1),
    Sketcher.Constraint("Coincident", 2, 2, 3, 1),
    Sketcher.Constraint("Coincident", 3, 2, 0, 1),
    Sketcher.Constraint("Vertical", 0),
    Sketcher.Constraint("Horizontal", 1),
    Sketcher.Constraint("Vertical", 2),
    Sketcher.Constraint("Horizontal", 3),
    Sketcher.Constraint("DistanceX", 1, 2, 1, 1, Q("1 in")),
    Sketcher.Constraint("DistanceY", 0, 2, 0, 1, Q("2.5 in")),
    Sketcher.Constraint("DistanceY", -1, 1, 2, 2, Q("1 in")),
    Sketcher.Constraint("DistanceX", -1, 1, 0, 2, Q("0.5 in")),
])
pocket2 = body.newObject("PartDesign::Pocket", "Pocket001")
pocket2.Profile = sketch6
pocket2.Length = Q("0.175 in")
pocket2.Reversed = True

# Sketch on YZ plane
sketch7 = body.newObject("Sketcher::SketchObject", "Sketch006")
sketch7.AttachmentSupport = (doc.getObject("YZ_Plane"), [""])
sketch7.MapMode = "FlatFace"
sketch7.addGeometry([
    Part.LineSegment(App.Vector(20.5, -4.8, 0), App.Vector(25.4, -4.8, 0)),
    Part.LineSegment(App.Vector(25.4, -4.8, 0), App.Vector(25.4, -1.9, 0)),
    Part.LineSegment(App.Vector(25.4, -1.9, 0), App.Vector(20.5, -4.8, 0)),
], False)
sketch7.addConstraint([
    Sketcher.Constraint("Coincident", 0, 2, 1, 1),
    Sketcher.Constraint("Coincident", 1, 2, 2, 1),
    Sketcher.Constraint("Coincident", 2, 2, 0, 1),
    Sketcher.Constraint("Horizontal", 0),
    Sketcher.Constraint("Vertical", 1),
    Sketcher.Constraint("DistanceX", -1, 1, 0, 2, Q("1 in")),
    Sketcher.Constraint("Angle", 2, Q("-150 deg")),
    Sketcher.Constraint("Distance", 2, Q("0.225 in")),
    Sketcher.Constraint("DistanceY", 0, 2, -1, 1, Q("0.1875 in")),
])
pad4 = body.newObject("PartDesign::Pad", "Pad003")
pad4.Profile = sketch7
pad4.Type = "UpToFirst"

# Sketch on YZ plane
sketch8 = body.newObject("Sketcher::SketchObject", "Sketch007")
sketch8.AttachmentSupport = (doc.getObject("YZ_Plane"), [""])
sketch8.MapMode = "FlatFace"
sketch8.addGeometry([
    Part.LineSegment(App.Vector(20.5, -4.8, 0), App.Vector(25.4, -4.8, 0)),
    Part.LineSegment(App.Vector(25.4, -4.8, 0), App.Vector(25.4, -1.9, 0)),
    Part.LineSegment(App.Vector(25.4, -1.9, 0), App.Vector(20.5, -4.8, 0)),
], False)
sketch8.addConstraint([
    Sketcher.Constraint("Coincident", 0, 2, 1, 1),
    Sketcher.Constraint("Coincident", 1, 2, 2, 1),
    Sketcher.Constraint("Coincident", 2, 2, 0, 1),
    Sketcher.Constraint("Horizontal", 0),
    Sketcher.Constraint("Vertical", 1),
    Sketcher.Constraint("DistanceX", -1, 1, 0, 2, Q("1 in")),
    Sketcher.Constraint("Angle", 2, Q("-150 deg")),
    Sketcher.Constraint("Distance", 2, Q("0.225 in")),
    Sketcher.Constraint("DistanceY", 0, 2, -1, 1, Q("0.1875 in")),
])
pad5 = body.newObject("PartDesign::Pad", "Pad004")
pad5.Profile = sketch8
pad5.Type = "UpToFirst"
pad5.Reversed = True
body2 = doc.addObject("PartDesign::Body", "Body001")

# Sketch on YZ plane
sketch9 = body2.newObject("Sketcher::SketchObject", "Sketch008")
sketch9.AttachmentSupport = (doc.getObject("YZ_Plane001"), [""])
sketch9.MapMode = "FlatFace"
sketch9.addGeometry([
    Part.LineSegment(App.Vector(19.9, -4.8, 0), App.Vector(24.5, -2.2, 0)),
    Part.LineSegment(App.Vector(24.5, -2.2, 0), App.Vector(-12.7, -2.2, 0)),
    Part.LineSegment(App.Vector(-12.7, -2.2, 0), App.Vector(-12.7, -4.8, 0)),
    Part.LineSegment(App.Vector(-12.7, -4.8, 0), App.Vector(19.9, -4.8, 0)),
], False)
sketch9.addConstraint([
    Sketcher.Constraint("Coincident", 0, 2, 1, 1),
    Sketcher.Constraint("Coincident", 1, 2, 2, 1),
    Sketcher.Constraint("Coincident", 2, 2, 3, 1),
    Sketcher.Constraint("Coincident", 3, 2, 0, 1),
    Sketcher.Constraint("Horizontal", 1),
    Sketcher.Constraint("Vertical", 2),
    Sketcher.Constraint("Horizontal", 3),
    Sketcher.Constraint("Angle", 0, Q("30 deg")),
    Sketcher.Constraint("DistanceX", 1, 2, -1, 1, Q("0.5 in")),
    Sketcher.Constraint("Distance", 0, Q("0.205 in")),
    Sketcher.Constraint("DistanceY", 0, 2, -1, 1, Q("0.085 in")),
    Sketcher.Constraint("DistanceX", 1, 2, 1, 1, Q("37.152059 mm")),
])
pad6 = body2.newObject("PartDesign::Pad", "Pad005")
pad6.Profile = sketch9
pad6.Type = "TwoLengths"
pad6.Length = Q("0.495 in")
pad6.Length2 = Q("0.495 in")
body3 = doc.addObject("PartDesign::Body", "Body002")
body3.AllowCompound = True

# Sketch on XY plane
sketch10 = body3.newObject("Sketcher::SketchObject", "Sketch009")
sketch10.AttachmentSupport = (doc.getObject("XY_Plane002"), [""])
sketch10.MapMode = "FlatFace"
sketch10.AttachmentOffset = App.Placement(App.Vector(0, 0, -3.159), App.Rotation())
sketch10.addGeometry([
    Part.Circle(App.Vector(0, -6, 0), App.Vector(0, 0, 1), 5),
    Part.Circle(App.Vector(0, 6, 0), App.Vector(0, 0, 1), 5),
], False)
sketch10.addConstraint([
    Sketcher.Constraint("Equal", 0, 1),
    Sketcher.Constraint("Symmetric", 0, 3, 1, 3, -1, 1),
    Sketcher.Constraint("PointOnObject", 0, 3, -2),
    Sketcher.Constraint("DistanceY", 0, 3, 1, 3, Q("0.5 in")),
    Sketcher.Constraint("Diameter", 0, Q("10.02 mm")),
])
pad7 = body3.newObject("PartDesign::Pad", "Pad006")
pad7.Profile = sketch10
pad7.Length = 2.454
doc.recompute()

body4 = doc.addObject("PartDesign::Body", "Body003")
body4.BaseFeature = body3
boolean = body.newObject("PartDesign::Boolean", "Boolean")
boolean.Type = "Cut"
boolean.addObjects([body4])
doc.recompute()

# Sketch on XY plane
sketch11 = body.newObject("Sketcher::SketchObject", "Sketch010")
sketch11.AttachmentSupport = (doc.getObject("XY_Plane"), [""])
sketch11.MapMode = "FlatFace"
sketch11.AttachmentOffset = App.Placement(App.Vector(0, 0, -0.075 * 25.4), App.Rotation())
sketch11.addGeometry([
    Part.Circle(App.Vector(0, 6, 0), App.Vector(0, 0, 1), 6),
    Part.Circle(App.Vector(0, -6, 0), App.Vector(0, 0, 1), 6),
], False)
sketch11.addConstraint([
    Sketcher.Constraint("Equal", 0, 1),
    Sketcher.Constraint("Symmetric", 0, 3, 1, 3, -1, 1),
    Sketcher.Constraint("PointOnObject", 0, 3, -2),
    Sketcher.Constraint("DistanceY", 1, 3, 0, 3, Q("0.5 in")),
    Sketcher.Constraint("Diameter", 0, Q("11.02 mm")),
])
pocket3 = body.newObject("PartDesign::Pocket", "Pocket002")
pocket3.Profile = sketch11
pocket3.Length = 1.2
pocket3.Reversed = True

# Sketch on XY plane
sketch12 = body.newObject("Sketcher::SketchObject", "Sketch011")
sketch12.AttachmentSupport = (doc.getObject("XY_Plane"), [""])
sketch12.MapMode = "FlatFace"
sketch12.AttachmentOffset = App.Placement(App.Vector(0, 0, 3.49), App.Rotation())
sketch12.addGeometry([
    Part.LineSegment(App.Vector(-12, -45, 0), App.Vector(-12, -51, 0)),
    Part.LineSegment(App.Vector(-12, -51, 0), App.Vector(-4, -51, 0)),
    Part.LineSegment(App.Vector(-4, -51, 0), App.Vector(-4, -45, 0)),
    Part.LineSegment(App.Vector(-4, -45, 0), App.Vector(-12, -45, 0)),
], False)
sketch12.addConstraint([
    Sketcher.Constraint("Coincident", 0, 2, 1, 1),
    Sketcher.Constraint("Coincident", 1, 2, 2, 1),
    Sketcher.Constraint("Coincident", 2, 2, 3, 1),
    Sketcher.Constraint("Coincident", 3, 2, 0, 1),
    Sketcher.Constraint("Vertical", 0),
    Sketcher.Constraint("Horizontal", 1),
    Sketcher.Constraint("Vertical", 2),
    Sketcher.Constraint("Horizontal", 3),
    Sketcher.Constraint("DistanceY", 0, 2, 0, 1, Q("0.25 in")),
    Sketcher.Constraint("DistanceY", 0, 2, -1, 1, Q("2.025 in")),
    Sketcher.Constraint("DistanceX", 1, 1, 1, 2, Q("8 mm")),
    Sketcher.Constraint("DistanceX", 0, 2, -1, 1, Q("11.782175 mm")),
])
pocket4 = body.newObject("PartDesign::Pocket", "Pocket003")
pocket4.Profile = sketch12
pocket4.Length = Q("0.1 in")
doc.recompute()

chamfer2 = body.newObject("PartDesign::Chamfer", "Chamfer001")
chamfer2.Base = (pocket4, edges_at(pocket4, [
    (-12.7, -6.35, -6.35),
    (0, 25.4, -6.35),
    (12.7, -6.35, -6.35),
    (0, -38.1, -6.35),
]))
chamfer2.Size = 0.4
doc.recompute()

boolean2 = body2.newObject("PartDesign::Boolean", "Boolean001")
boolean2.Type = "Cut"
boolean2.addObjects([body3])
doc.recompute()

chamfer3 = body2.newObject("PartDesign::Chamfer", "Chamfer002")
chamfer3.Base = (boolean2, edges_at(boolean2, [
    (12.573, 3.621, -4.763),
    (12.573, 5.876, -2.159),
    (-12.573, 3.621, -4.763),
    (-12.573, 5.876, -2.159),
]))
chamfer3.Size = Q("0.02 in")

# Sketch on XY plane
sketch13 = body2.newObject("Sketcher::SketchObject", "Sketch012")
sketch13.AttachmentSupport = (doc.getObject("XY_Plane001"), [""])
sketch13.MapMode = "FlatFace"
sketch13.AttachmentOffset = App.Placement(App.Vector(0, 0, -0.085 * 25.4), App.Rotation())
sketch13.addGeometry([
    Part.Circle(App.Vector(0, 6, 0), App.Vector(0, 0, 1), 5),
    Part.Circle(App.Vector(0, -6, 0), App.Vector(0, 0, 1), 5),
], False)
sketch13.addConstraint([
    Sketcher.Constraint("Equal", 0, 1),
    Sketcher.Constraint("Symmetric", 0, 3, 1, 3, -1, 1),
    Sketcher.Constraint("PointOnObject", 0, 3, -2),
    Sketcher.Constraint("DistanceY", 1, 3, 0, 3, Q("0.5 in")),
    Sketcher.Constraint("Diameter", 0, Q("10.528 mm")),
])
pocket5 = body2.newObject("PartDesign::Pocket", "Pocket004")
pocket5.Profile = sketch13
pocket5.Length = 1
doc.recompute()

chamfer4 = body2.newObject("PartDesign::Chamfer", "Chamfer003")
chamfer4.Base = (pocket5, edges_at(pocket5, [(-5.264, 6.35, -2.159), (-5.264, -6.35, -2.159)]))
chamfer4.Size = 0.2

doc.recompute()
